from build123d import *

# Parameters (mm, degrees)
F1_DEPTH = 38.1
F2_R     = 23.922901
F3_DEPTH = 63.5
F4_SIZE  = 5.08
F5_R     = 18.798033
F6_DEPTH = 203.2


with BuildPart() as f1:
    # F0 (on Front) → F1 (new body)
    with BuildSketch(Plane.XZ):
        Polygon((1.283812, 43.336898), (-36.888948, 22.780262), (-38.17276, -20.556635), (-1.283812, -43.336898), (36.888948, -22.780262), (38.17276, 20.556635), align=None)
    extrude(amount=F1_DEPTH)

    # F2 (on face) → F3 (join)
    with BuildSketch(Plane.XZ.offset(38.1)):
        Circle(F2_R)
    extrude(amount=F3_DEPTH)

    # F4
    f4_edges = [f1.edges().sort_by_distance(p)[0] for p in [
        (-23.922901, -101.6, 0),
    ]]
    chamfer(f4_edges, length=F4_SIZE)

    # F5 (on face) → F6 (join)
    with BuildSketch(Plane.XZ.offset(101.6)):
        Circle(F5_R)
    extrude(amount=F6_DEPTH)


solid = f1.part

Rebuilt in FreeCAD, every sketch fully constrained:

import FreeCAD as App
import Part
import Sketcher
Q = App.Units.Quantity


def edges_at(feature, points):
    """Names of the edges that pass closest to the given points."""
    edges = feature.Shape.Edges
    near = lambda p: min(range(len(edges)), key=lambda i: edges[i].distToShape(Part.Vertex(*p))[0])
    return sorted({f"Edge{near(p) + 1}" for p in points})


def add_polygon(sketch, points):
    """Adds a closed chain of lines whose ends are joined by coincident constraints."""
    first, n = sketch.GeometryCount, len(points)
    for a, b in zip(points, points[1:] + points[:1]):
        sketch.addGeometry(Part.LineSegment(App.Vector(*a, 0), App.Vector(*b, 0)), False)
    for i in range(n):
        sketch.addConstraint(Sketcher.Constraint("Coincident", first + i, 2, first + (i + 1) % n, 1))

doc = App.newDocument("Part")
body = doc.addObject("PartDesign::Body", "Body")

# Sketch on XZ plane
sketch1 = body.newObject("Sketcher::SketchObject", "Sketch")
sketch1.AttachmentSupport = (doc.getObject("XZ_Plane"), [""])
sketch1.MapMode = "FlatFace"
add_polygon(sketch1, [(1, 43), (-37, 23), (-38, -21), (-1, -43), (37, -23), (38, 21)])  # lines 0-5
sketch1.addConstraint([
    Sketcher.Constraint("Symmetric", 0, 2, 3, 2, -1, 1),
    Sketcher.Constraint("Symmetric", 1, 2, 4, 2, -1, 1),
    Sketcher.Constraint("Symmetric", 2, 2, 5, 2, -1, 1),
    Sketcher.Constraint("Equal", 0, 1),
    Sketcher.Constraint("Equal", 1, 2),
    Sketcher.Constraint("Distance", 0, 43.35591),
    Sketcher.Constraint("DistanceX", 1, 2, -1, 1, 38.17276),
    Sketcher.Constraint("DistanceX", 1, 2, 0, 2, 1.283812),
    Sketcher.Constraint("DistanceY", 2, 2, 0, 2, 66.11716),
])
pad1 = body.newObject("PartDesign::Pad", "Pad")
pad1.Profile = sketch1
pad1.Length = Q("1.5 in")

# Sketch on XZ plane
sketch2 = body.newObject("Sketcher::SketchObject", "Sketch001")
sketch2.AttachmentSupport = (doc.getObject("XZ_Plane"), [""])
sketch2.MapMode = "FlatFace"
sketch2.AttachmentOffset = App.Placement(App.Vector(0, 0, 1.5 * 25.4), App.Rotation())
sketch2.addGeometry(Part.Circle(App.Vector(0, 0, 0), App.Vector(0, 0, 1), 24), False)
sketch2.addConstraint([
    Sketcher.Constraint("Coincident", 0, 3, -1, 1),
    Sketcher.Constraint("Diameter", 0, 47.845802),
])
pad2 = body.newObject("PartDesign::Pad", "Pad001")
pad2.Profile = sketch2
pad2.Length = Q("2.5 in")
doc.recompute()

chamfer = body.newObject("PartDesign::Chamfer", "Chamfer")
chamfer.Base = (pad2, edges_at(pad2, [(-23.923, -101.6, 0)]))
chamfer.Size = Q("0.2 in")

# Sketch on XZ plane
sketch3 = body.newObject("Sketcher::SketchObject", "Sketch002")
sketch3.AttachmentSupport = (doc.getObject("XZ_Plane"), [""])
sketch3.MapMode = "FlatFace"
sketch3.AttachmentOffset = App.Placement(App.Vector(0, 0, 4 * 25.4), App.Rotation())
sketch3.addGeometry(Part.Circle(App.Vector(0, 0, 0), App.Vector(0, 0, 1), 19), False)
sketch3.addConstraint([
    Sketcher.Constraint("Coincident", 0, 3, -1, 1),
    Sketcher.Constraint("Diameter", 0, 37.596066),
])
pad3 = body.newObject("PartDesign::Pad", "Pad002")
pad3.Profile = sketch3
pad3.Length = Q("8 in")

doc.recompute()
